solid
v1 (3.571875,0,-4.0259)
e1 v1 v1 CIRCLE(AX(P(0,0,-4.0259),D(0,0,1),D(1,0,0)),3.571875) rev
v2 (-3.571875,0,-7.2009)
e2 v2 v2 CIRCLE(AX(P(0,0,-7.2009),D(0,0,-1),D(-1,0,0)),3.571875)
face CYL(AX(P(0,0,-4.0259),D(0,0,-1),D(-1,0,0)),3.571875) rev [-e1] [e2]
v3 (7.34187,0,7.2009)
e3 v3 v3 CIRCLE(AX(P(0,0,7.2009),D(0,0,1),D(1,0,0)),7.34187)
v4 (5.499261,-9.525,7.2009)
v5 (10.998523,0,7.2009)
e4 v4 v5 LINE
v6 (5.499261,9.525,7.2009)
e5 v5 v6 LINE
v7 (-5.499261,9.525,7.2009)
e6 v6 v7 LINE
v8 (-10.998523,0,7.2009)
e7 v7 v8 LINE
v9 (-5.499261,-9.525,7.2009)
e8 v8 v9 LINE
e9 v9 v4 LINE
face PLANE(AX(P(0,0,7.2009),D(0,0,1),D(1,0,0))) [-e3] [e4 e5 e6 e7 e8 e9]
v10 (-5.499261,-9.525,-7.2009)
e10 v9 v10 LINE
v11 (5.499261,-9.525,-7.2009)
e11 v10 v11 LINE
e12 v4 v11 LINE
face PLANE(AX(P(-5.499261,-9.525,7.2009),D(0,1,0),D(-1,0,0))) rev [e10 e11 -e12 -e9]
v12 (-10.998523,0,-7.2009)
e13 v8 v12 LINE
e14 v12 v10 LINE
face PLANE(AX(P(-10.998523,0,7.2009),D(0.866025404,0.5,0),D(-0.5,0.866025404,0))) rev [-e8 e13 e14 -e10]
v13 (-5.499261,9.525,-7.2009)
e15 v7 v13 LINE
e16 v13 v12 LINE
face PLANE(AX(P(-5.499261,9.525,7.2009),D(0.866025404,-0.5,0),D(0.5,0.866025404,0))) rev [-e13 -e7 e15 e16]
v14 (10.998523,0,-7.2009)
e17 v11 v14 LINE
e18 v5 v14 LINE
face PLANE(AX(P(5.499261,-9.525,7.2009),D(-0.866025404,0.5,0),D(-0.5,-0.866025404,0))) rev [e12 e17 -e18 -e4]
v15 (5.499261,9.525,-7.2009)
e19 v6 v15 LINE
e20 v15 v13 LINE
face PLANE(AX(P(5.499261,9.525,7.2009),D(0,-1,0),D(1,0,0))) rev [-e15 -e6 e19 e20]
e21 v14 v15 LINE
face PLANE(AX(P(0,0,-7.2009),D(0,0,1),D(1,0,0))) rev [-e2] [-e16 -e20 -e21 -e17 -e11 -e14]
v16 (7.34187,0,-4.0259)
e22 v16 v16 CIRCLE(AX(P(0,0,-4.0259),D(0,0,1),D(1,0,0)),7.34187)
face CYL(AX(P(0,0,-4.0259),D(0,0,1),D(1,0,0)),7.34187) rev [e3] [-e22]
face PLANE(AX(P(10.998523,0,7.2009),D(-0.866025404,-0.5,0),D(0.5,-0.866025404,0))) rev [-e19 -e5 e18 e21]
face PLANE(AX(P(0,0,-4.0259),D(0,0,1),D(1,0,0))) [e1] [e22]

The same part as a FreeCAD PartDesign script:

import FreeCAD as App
import Part
import Sketcher
Q = App.Units.Quantity

doc = App.newDocument("Part")
params = doc.addObject("Spreadsheet::Sheet", "Params")
for row, (alias, value) in enumerate([
    ("pad1_length", "0.567 in"),
    ("sketch2_diameter", "0.28125 in"),
    ("pocket1_length", "0.125 in"),
    ("pocket2_length", "0.442 in"),
], start=1):
    params.set(f"A{row}", alias)
    params.set(f"B{row}", "=" + value)
    params.setAlias(f"B{row}", alias)

body = doc.addObject("PartDesign::Body", "Body")

# Sketch on XY plane
sketch1 = doc.addObject("Sketcher::SketchObject", "Sketch")
body.addObject(sketch1)
sketch1.AttachmentSupport = (doc.XY_Plane, [""])
sketch1.MapMode = "FlatFace"
sketch1.addGeometry(Part.LineSegment(App.Vector(10.998523, 0, 0), App.Vector(5.499261, 9.525, 0)), False)
sketch1.addGeometry(Part.LineSegment(App.Vector(5.499261, 9.525, 0), App.Vector(-5.499261, 9.525, 0)), False)
sketch1.addGeometry(Part.LineSegment(App.Vector(-5.499261, 9.525, 0), App.Vector(-10.998523, 0, 0)), False)
sketch1.addGeometry(Part.LineSegment(App.Vector(-10.998523, 0, 0), App.Vector(-5.499261, -9.525, 0)), False)
sketch1.addGeometry(Part.LineSegment(App.Vector(-5.499261, -9.525, 0), App.Vector(5.499261, -9.525, 0)), False)
sketch1.addGeometry(Part.LineSegment(App.Vector(5.499261, -9.525, 0), App.Vector(10.998523, 0, 0)), False)
sketch1.addConstraint(Sketcher.Constraint("Coincident", 0, 2, 1, 1))
sketch1.addConstraint(Sketcher.Constraint("Coincident", 1, 2, 2, 1))
sketch1.addConstraint(Sketcher.Constraint("Coincident", 2, 2, 3, 1))
sketch1.addConstraint(Sketcher.Constraint("Coincident", 3, 2, 4, 1))
sketch1.addConstraint(Sketcher.Constraint("Coincident", 4, 2, 5, 1))
sketch1.addConstraint(Sketcher.Constraint("Coincident", 5, 2, 0, 1))
sketch1.addConstraint(Sketcher.Constraint("Horizontal", 1))
sketch1.addConstraint(Sketcher.Constraint("Horizontal", 4))
sketch1.addConstraint(Sketcher.Constraint("Symmetric", 0, 2, 3, 2, -1, 1))
sketch1.addConstraint(Sketcher.Constraint("Symmetric", 2, 2, 5, 2, -1, 1))
sketch1.addConstraint(Sketcher.Constraint("PointOnObject", 2, 2, -1))
sketch1.addConstraint(Sketcher.Constraint("Parallel", 2, 5))
sketch1.addConstraint(Sketcher.Constraint("Vertical", 1, 2, 3, 2))
sketch1.addConstraint(Sketcher.Constraint("Angle", 0, Q("120 deg")))
sketch1.addConstraint(Sketcher.Constraint("DistanceY", 3, 2, 1, 2, Q("0.75 in")))
sketch1.addConstraint(Sketcher.Constraint("DistanceX", 1, 2, 1, 1, Q("10.998523 mm")))
pad1 = doc.addObject("PartDesign::Pad", "Pad")
body.addObject(pad1)
pad1.Profile = sketch1
pad1.setExpression("Length", "Params.pad1_length")
pad1.Midplane = True

# Sketch on XY plane
sketch2 = doc.addObject("Sketcher::SketchObject", "Sketch001")
body.addObject(sketch2)
sketch2.AttachmentSupport = (doc.XY_Plane, [""])
sketch2.MapMode = "FlatFace"
sketch2.AttachmentOffset = App.Placement(App.Vector(0, 0, -0.2835 * 25.4), App.Rotation())
sketch2.addGeometry(Part.Circle(App.Vector(0, 0, 0), App.Vector(0, 0, 1), 3.571875), False)
sketch2.addConstraint(Sketcher.Constraint("Coincident", 0, 3, -1, 1))
sketch2.addConstraint(Sketcher.Constraint("Diameter", 0, Q("0.28125 in")))
sketch2.setExpression("Constraints[1]", "Params.sketch2_diameter")
pocket1 = doc.addObject("PartDesign::Pocket", "Pocket")
body.addObject(pocket1)
pocket1.Profile = sketch2
pocket1.setExpression("Length", "Params.pocket1_length")
pocket1.Reversed = True

# Sketch on XY plane
sketch3 = doc.addObject("Sketcher::SketchObject", "Sketch002")
body.addObject(sketch3)
sketch3.AttachmentSupport = (doc.XY_Plane, [""])
sketch3.MapMode = "FlatFace"
sketch3.AttachmentOffset = App.Placement(App.Vector(0, 0, 0.2835 * 25.4), App.Rotation())
sketch3.addGeometry(Part.Circle(App.Vector(0, 0, 0), App.Vector(0, 0, 1), 7.34187), False)
sketch3.addConstraint(Sketcher.Constraint("Coincident", 0, 3, -1, 1))
sketch3.addConstraint(Sketcher.Constraint("Diameter", 0, Q("0.5781 in")))
pocket2 = doc.addObject("PartDesign::Pocket", "Pocket001")
body.addObject(pocket2)
pocket2.Profile = sketch3
pocket2.setExpression("Length", "Params.pocket2_length")

doc.recompute()
